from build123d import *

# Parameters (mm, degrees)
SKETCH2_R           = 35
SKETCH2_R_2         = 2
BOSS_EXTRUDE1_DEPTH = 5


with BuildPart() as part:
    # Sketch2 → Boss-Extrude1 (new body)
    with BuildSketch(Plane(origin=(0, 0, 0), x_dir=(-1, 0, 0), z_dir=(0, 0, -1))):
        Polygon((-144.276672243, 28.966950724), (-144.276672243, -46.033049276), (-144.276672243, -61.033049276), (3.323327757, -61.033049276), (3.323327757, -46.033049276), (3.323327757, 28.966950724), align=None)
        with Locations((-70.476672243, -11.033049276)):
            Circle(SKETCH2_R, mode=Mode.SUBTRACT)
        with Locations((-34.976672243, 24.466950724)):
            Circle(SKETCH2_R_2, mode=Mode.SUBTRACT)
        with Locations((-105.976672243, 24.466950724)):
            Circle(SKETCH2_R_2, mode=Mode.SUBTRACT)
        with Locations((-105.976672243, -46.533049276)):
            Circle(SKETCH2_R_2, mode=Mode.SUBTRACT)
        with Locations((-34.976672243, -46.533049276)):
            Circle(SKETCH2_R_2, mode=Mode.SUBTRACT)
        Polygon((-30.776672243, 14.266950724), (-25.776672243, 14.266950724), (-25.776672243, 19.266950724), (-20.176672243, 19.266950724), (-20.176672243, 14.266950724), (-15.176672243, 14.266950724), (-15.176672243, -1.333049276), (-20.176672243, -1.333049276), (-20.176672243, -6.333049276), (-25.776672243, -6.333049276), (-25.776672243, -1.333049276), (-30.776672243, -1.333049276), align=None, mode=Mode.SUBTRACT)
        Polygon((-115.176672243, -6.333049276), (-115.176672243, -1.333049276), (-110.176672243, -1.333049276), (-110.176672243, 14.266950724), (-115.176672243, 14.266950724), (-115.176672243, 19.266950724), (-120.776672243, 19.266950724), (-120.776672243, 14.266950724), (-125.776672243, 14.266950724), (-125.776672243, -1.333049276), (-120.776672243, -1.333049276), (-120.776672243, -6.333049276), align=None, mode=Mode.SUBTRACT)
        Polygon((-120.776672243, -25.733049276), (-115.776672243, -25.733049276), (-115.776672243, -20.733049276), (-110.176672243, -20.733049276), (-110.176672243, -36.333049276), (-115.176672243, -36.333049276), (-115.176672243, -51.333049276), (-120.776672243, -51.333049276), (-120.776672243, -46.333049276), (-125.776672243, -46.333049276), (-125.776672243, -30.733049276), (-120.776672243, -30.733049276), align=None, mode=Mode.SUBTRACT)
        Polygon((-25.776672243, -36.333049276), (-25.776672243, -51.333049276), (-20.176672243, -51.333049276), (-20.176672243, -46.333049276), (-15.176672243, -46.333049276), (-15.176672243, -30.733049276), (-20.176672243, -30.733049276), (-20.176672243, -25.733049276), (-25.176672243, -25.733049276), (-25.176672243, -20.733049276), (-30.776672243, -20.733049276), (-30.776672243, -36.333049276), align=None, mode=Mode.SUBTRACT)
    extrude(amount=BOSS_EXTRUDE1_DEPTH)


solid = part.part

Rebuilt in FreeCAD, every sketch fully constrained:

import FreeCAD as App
import Part
import Sketcher
from FreeCAD import Vector

doc = App.newDocument("Part")
body = doc.addObject("PartDesign::Body", "Body")

sketch1 = doc.addObject("Sketcher::SketchObject", "Sketch")
body.addObject(sketch1)
sketch1.AttachmentSupport = (doc.XY_Plane, [""])
sketch1.MapMode = "FlatFace"
sketch1.addGeometry([
    Part.LineSegment(Vector(144.276672, 28.966951, 0), Vector(144.276672, -61.033049, 0)),
    Part.LineSegment(Vector(144.276672, -61.033049, 0), Vector(-3.323328, -61.033049, 0)),
    Part.LineSegment(Vector(-3.323328, -61.033049, 0), Vector(-3.323328, 28.966951, 0)),
    Part.LineSegment(Vector(-3.323328, 28.966951, 0), Vector(144.276672, 28.966951, 0)),
    Part.Circle(Vector(105.976672, -46.533049, 0), Vector(0, 0, 1), 2),
    Part.LineSegment(Vector(120.776672, -30.733049, 0), Vector(120.776672, -25.733049, 0)),
    Part.LineSegment(Vector(120.776672, -25.733049, 0), Vector(115.776672, -25.733049, 0)),
    Part.LineSegment(Vector(115.776672, -25.733049, 0), Vector(115.776672, -20.733049, 0)),
    Part.LineSegment(Vector(115.776672, -20.733049, 0), Vector(110.176672, -20.733049, 0)),
    Part.LineSegment(Vector(110.176672, -20.733049, 0), Vector(110.176672, -36.333049, 0)),
    Part.LineSegment(Vector(110.176672, -36.333049, 0), Vector(115.176672, -36.333049, 0)),
    Part.LineSegment(Vector(115.176672, -36.333049, 0), Vector(115.176672, -51.333049, 0)),
    Part.LineSegment(Vector(115.176672, -51.333049, 0), Vector(120.776672, -51.333049, 0)),
    Part.LineSegment(Vector(120.776672, -51.333049, 0), Vector(120.776672, -46.333049, 0)),
    Part.LineSegment(Vector(120.776672, -46.333049, 0), Vector(125.776672, -46.333049, 0)),
    Part.LineSegment(Vector(125.776672, -46.333049, 0), Vector(125.776672, -30.733049, 0)),
    Part.LineSegment(Vector(125.776672, -30.733049, 0), Vector(120.776672, -30.733049, 0)),
    Part.Circle(Vector(34.976672, -46.533049, 0), Vector(0, 0, 1), 2),
    Part.LineSegment(Vector(25.776672, -51.333049, 0), Vector(25.776672, -36.333049, 0)),
    Part.LineSegment(Vector(25.776672, -36.333049, 0), Vector(30.776672, -36.333049, 0)),
    Part.LineSegment(Vector(30.776672, -36.333049, 0), Vector(30.776672, -20.733049, 0)),
    Part.LineSegment(Vector(30.776672, -20.733049, 0), Vector(25.176672, -20.733049, 0)),
    Part.LineSegment(Vector(25.176672, -20.733049, 0), Vector(25.176672, -25.733049, 0)),
    Part.LineSegment(Vector(25.176672, -25.733049, 0), Vector(20.176672, -25.733049, 0)),
    Part.LineSegment(Vector(20.176672, -25.733049, 0), Vector(20.176672, -30.733049, 0)),
    Part.LineSegment(Vector(20.176672, -30.733049, 0), Vector(15.176672, -30.733049, 0)),
    Part.LineSegment(Vector(15.176672, -30.733049, 0), Vector(15.176672, -46.333049, 0)),
    Part.LineSegment(Vector(15.176672, -46.333049, 0), Vector(20.176672, -46.333049, 0)),
    Part.LineSegment(Vector(20.176672, -46.333049, 0), Vector(20.176672, -51.333049, 0)),
    Part.LineSegment(Vector(20.176672, -51.333049, 0), Vector(25.776672, -51.333049, 0)),
    Part.LineSegment(Vector(115.176672, -1.333049, 0), Vector(115.176672, -6.333049, 0)),
    Part.LineSegment(Vector(115.176672, -6.333049, 0), Vector(120.776672, -6.333049, 0)),
    Part.LineSegment(Vector(120.776672, -6.333049, 0), Vector(120.776672, -1.333049, 0)),
    Part.LineSegment(Vector(120.776672, -1.333049, 0), Vector(125.776672, -1.333049, 0)),
    Part.LineSegment(Vector(125.776672, -1.333049, 0), Vector(125.776672, 14.266951, 0)),
    Part.LineSegment(Vector(125.776672, 14.266951, 0), Vector(120.776672, 14.266951, 0)),
    Part.LineSegment(Vector(120.776672, 14.266951, 0), Vector(120.776672, 19.266951, 0)),
    Part.LineSegment(Vector(120.776672, 19.266951, 0), Vector(115.176672, 19.266951, 0)),
    Part.LineSegment(Vector(115.176672, 19.266951, 0), Vector(115.176672, 14.266951, 0)),
    Part.LineSegment(Vector(115.176672, 14.266951, 0), Vector(110.176672, 14.266951, 0)),
    Part.LineSegment(Vector(110.176672, 14.266951, 0), Vector(110.176672, -1.333049, 0)),
    Part.LineSegment(Vector(110.176672, -1.333049, 0), Vector(115.176672, -1.333049, 0)),
    Part.Circle(Vector(105.976672, 24.466951, 0), Vector(0, 0, 1), 2),
    Part.Circle(Vector(70.476672, -11.033049, 0), Vector(0, 0, 1), 35),
    Part.LineSegment(Vector(30.776672, -1.333049, 0), Vector(30.776672, 14.266951, 0)),
    Part.LineSegment(Vector(30.776672, 14.266951, 0), Vector(25.776672, 14.266951, 0)),
    Part.LineSegment(Vector(25.776672, 14.266951, 0), Vector(25.776672, 19.266951, 0)),
    Part.LineSegment(Vector(25.776672, 19.266951, 0), Vector(20.176672, 19.266951, 0)),
    Part.LineSegment(Vector(20.176672, 19.266951, 0), Vector(20.176672, 14.266951, 0)),
    Part.LineSegment(Vector(20.176672, 14.266951, 0), Vector(15.176672, 14.266951, 0)),
    Part.LineSegment(Vector(15.176672, 14.266951, 0), Vector(15.176672, -1.333049, 0)),
    Part.LineSegment(Vector(15.176672, -1.333049, 0), Vector(20.176672, -1.333049, 0)),
    Part.LineSegment(Vector(20.176672, -1.333049, 0), Vector(20.176672, -6.333049, 0)),
    Part.LineSegment(Vector(20.176672, -6.333049, 0), Vector(25.776672, -6.333049, 0)),
    Part.LineSegment(Vector(25.776672, -6.333049, 0), Vector(25.776672, -1.333049, 0)),
    Part.LineSegment(Vector(25.776672, -1.333049, 0), Vector(30.776672, -1.333049, 0)),
    Part.Circle(Vector(34.976672, 24.466951, 0), Vector(0, 0, 1), 2),
], False)
sketch1.addConstraint([
    Sketcher.Constraint("Coincident", 0, 2, 1, 1),
    Sketcher.Constraint("Coincident", 1, 2, 2, 1),
    Sketcher.Constraint("Coincident", 2, 2, 3, 1),
    Sketcher.Constraint("Coincident", 3, 2, 0, 1),
    Sketcher.Constraint("Coincident", 5, 2, 6, 1),
    Sketcher.Constraint("Coincident", 6, 2, 7, 1),
    Sketcher.Constraint("Coincident", 7, 2, 8, 1),
    Sketcher.Constraint("Coincident", 8, 2, 9, 1),
    Sketcher.Constraint("Coincident", 9, 2, 10, 1),
    Sketcher.Constraint("Coincident", 10, 2, 11, 1),
    Sketcher.Constraint("Coincident", 11, 2, 12, 1),
    Sketcher.Constraint("Coincident", 12, 2, 13, 1),
    Sketcher.Constraint("Coincident", 13, 2, 14, 1),
    Sketcher.Constraint("Coincident", 14, 2, 15, 1),
    Sketcher.Constraint("Coincident", 15, 2, 16, 1),
    Sketcher.Constraint("Coincident", 16, 2, 5, 1),
    Sketcher.Constraint("Coincident", 18, 2, 19, 1),
    Sketcher.Constraint("Coincident", 19, 2, 20, 1),
    Sketcher.Constraint("Coincident", 20, 2, 21, 1),
    Sketcher.Constraint("Coincident", 21, 2, 22, 1),
    Sketcher.Constraint("Coincident", 22, 2, 23, 1),
    Sketcher.Constraint("Coincident", 23, 2, 24, 1),
    Sketcher.Constraint("Coincident", 24, 2, 25, 1),
    Sketcher.Constraint("Coincident", 25, 2, 26, 1),
    Sketcher.Constraint("Coincident", 26, 2, 27, 1),
    Sketcher.Constraint("Coincident", 27, 2, 28, 1),
    Sketcher.Constraint("Coincident", 28, 2, 29, 1),
    Sketcher.Constraint("Coincident", 29, 2, 18, 1),
    Sketcher.Constraint("Coincident", 30, 2, 31, 1),
    Sketcher.Constraint("Coincident", 31, 2, 32, 1),
    Sketcher.Constraint("Coincident", 32, 2, 33, 1),
    Sketcher.Constraint("Coincident", 33, 2, 34, 1),
    Sketcher.Constraint("Coincident", 34, 2, 35, 1),
    Sketcher.Constraint("Coincident", 35, 2, 36, 1),
    Sketcher.Constraint("Coincident", 36, 2, 37, 1),
    Sketcher.Constraint("Coincident", 37, 2, 38, 1),
    Sketcher.Constraint("Coincident", 38, 2, 39, 1),
    Sketcher.Constraint("Coincident", 39, 2, 40, 1),
    Sketcher.Constraint("Coincident", 40, 2, 41, 1),
    Sketcher.Constraint("Coincident", 41, 2, 30, 1),
    Sketcher.Constraint("Coincident", 44, 2, 45, 1),
    Sketcher.Constraint("Coincident", 45, 2, 46, 1),
    Sketcher.Constraint("Coincident", 46, 2, 47, 1),
    Sketcher.Constraint("Coincident", 47, 2, 48, 1),
    Sketcher.Constraint("Coincident", 48, 2, 49, 1),
    Sketcher.Constraint("Coincident", 49, 2, 50, 1),
    Sketcher.Constraint("Coincident", 50, 2, 51, 1),
    Sketcher.Constraint("Coincident", 51, 2, 52, 1),
    Sketcher.Constraint("Coincident", 52, 2, 53, 1),
    Sketcher.Constraint("Coincident", 53, 2, 54, 1),
    Sketcher.Constraint("Coincident", 54, 2, 55, 1),
    Sketcher.Constraint("Coincident", 55, 2, 44, 1),
    Sketcher.Constraint("Vertical", 0),
    Sketcher.Constraint("Horizontal", 1),
    Sketcher.Constraint("Vertical", 2),
    Sketcher.Constraint("Horizontal", 3),
    Sketcher.Constraint("Vertical", 5),
    Sketcher.Constraint("Horizontal", 6),
    Sketcher.Constraint("Vertical", 7),
    Sketcher.Constraint("Horizontal", 8),
    Sketcher.Constraint("Vertical", 9),
    Sketcher.Constraint("Horizontal", 10),
    Sketcher.Constraint("Vertical", 11),
    Sketcher.Constraint("Horizontal", 12),
    Sketcher.Constraint("Vertical", 13),
    Sketcher.Constraint("Horizontal", 14),
    Sketcher.Constraint("Vertical", 15),
    Sketcher.Constraint("Horizontal", 16),
    Sketcher.Constraint("Vertical", 18),
    Sketcher.Constraint("Horizontal", 19),
    Sketcher.Constraint("Vertical", 20),
    Sketcher.Constraint("Horizontal", 21),
    Sketcher.Constraint("Vertical", 22),
    Sketcher.Constraint("Horizontal", 23),
    Sketcher.Constraint("Vertical", 24),
    Sketcher.Constraint("Horizontal", 25),
    Sketcher.Constraint("Vertical", 26),
    Sketcher.Constraint("Horizontal", 27),
    Sketcher.Constraint("Vertical", 28),
    Sketcher.Constraint("Horizontal", 29),
    Sketcher.Constraint("Vertical", 30),
    Sketcher.Constraint("Horizontal", 31),
    Sketcher.Constraint("Vertical", 32),
    Sketcher.Constraint("Horizontal", 33),
    Sketcher.Constraint("Vertical", 34),
    Sketcher.Constraint("Horizontal", 35),
    Sketcher.Constraint("Vertical", 36),
    Sketcher.Constraint("Horizontal", 37),
    Sketcher.Constraint("Vertical", 38),
    Sketcher.Constraint("Horizontal", 39),
    Sketcher.Constraint("Vertical", 40),
    Sketcher.Constraint("Horizontal", 41),
    Sketcher.Constraint("Vertical", 44),
    Sketcher.Constraint("Horizontal", 45),
    Sketcher.Constraint("Vertical", 46),
    Sketcher.Constraint("Horizontal", 47),
    Sketcher.Constraint("Vertical", 48),
    Sketcher.Constraint("Horizontal", 49),
    Sketcher.Constraint("Vertical", 50),
    Sketcher.Constraint("Horizontal", 51),
    Sketcher.Constraint("Vertical", 52),
    Sketcher.Constraint("Horizontal", 53),
    Sketcher.Constraint("Vertical", 54),
    Sketcher.Constraint("Horizontal", 55),
    Sketcher.Constraint("Equal", 4, 17),
    Sketcher.Constraint("Equal", 17, 42),
    Sketcher.Constraint("Equal", 42, 56),
    Sketcher.Constraint("Horizontal", 4, 3, 17, 3),
    Sketcher.Constraint("Horizontal", 42, 3, 56, 3),
    Sketcher.Constraint("Horizontal", 10, 2, 18, 2),
    Sketcher.Constraint("Horizontal", 8, 2, 20, 2),
    Sketcher.Constraint("Horizontal", 6, 2, 22, 2),
    Sketcher.Constraint("Horizontal", 16, 2, 24, 2),
    Sketcher.Constraint("Horizontal", 14, 2, 26, 2),
    Sketcher.Constraint("Horizontal", 12, 2, 28, 2),
    Sketcher.Constraint("Horizontal", 35, 2, 38, 2),
    Sketcher.Constraint("Horizontal", 33, 2, 40, 2),
    Sketcher.Constraint("Horizontal", 39, 2, 44, 2),
    Sketcher.Constraint("Horizontal", 37, 2, 46, 2),
    Sketcher.Constraint("Horizontal", 45, 2, 48, 2),
    Sketcher.Constraint("Horizontal", 41, 2, 50, 2),
    Sketcher.Constraint("Horizontal", 31, 2, 52, 2),
    Sketcher.Constraint("Horizontal", 51, 2, 54, 2),
    Sketcher.Constraint("Vertical", 4, 3, 42, 3),
    Sketcher.Constraint("Vertical", 17, 3, 56, 3),
    Sketcher.Constraint("Vertical", 5, 2, 12, 2),
    Sketcher.Constraint("Vertical", 24, 2, 27, 2),
    Sketcher.Constraint("Vertical", 11, 2, 30, 2),
    Sketcher.Constraint("Vertical", 16, 2, 31, 2),
    Sketcher.Constraint("Vertical", 15, 2, 33, 2),
    Sketcher.Constraint("Vertical", 32, 2, 35, 2),
    Sketcher.Constraint("Vertical", 30, 2, 37, 2),
    Sketcher.Constraint("Vertical", 9, 2, 39, 2),
    Sketcher.Constraint("Vertical", 20, 2, 44, 2),
    Sketcher.Constraint("Vertical", 29, 2, 45, 2),
    Sketcher.Constraint("Vertical", 28, 2, 47, 2),
    Sketcher.Constraint("Vertical", 26, 2, 49, 2),
    Sketcher.Constraint("Vertical", 48, 2, 51, 2),
    Sketcher.Constraint("Vertical", 46, 2, 53, 2),
    Sketcher.Constraint("Equal", 6, 10),
    Sketcher.Constraint("Equal", 10, 14),
    Sketcher.Constraint("Equal", 16, 19),
    Sketcher.Constraint("Equal", 12, 21),
    Sketcher.Constraint("Equal", 19, 23),
    Sketcher.Constraint("Equal", 23, 25),
    Sketcher.Constraint("Equal", 55, 5),
    Sketcher.Constraint("Equal", 5, 7),
    Sketcher.Constraint("Equal", 7, 13),
    Sketcher.Constraint("Equal", 9, 15),
    Sketcher.Constraint("Equal", 28, 30),
    Sketcher.Constraint("Equal", 26, 34),
    Sketcher.Constraint("Equal", 32, 36),
    Sketcher.Constraint("Diameter", 4, 4.0),
    Sketcher.Constraint("Diameter", 43, 70.0),
    Sketcher.Constraint("DistanceX", 6, 2, 6, 1, 5.0),
    Sketcher.Constraint("DistanceY", 0, 2, 0, 1, 90.0),
    Sketcher.Constraint("DistanceX", 1, 2, 1, 1, 147.6),
    Sketcher.Constraint("DistanceX", 8, 2, 8, 1, 5.6),
    Sketcher.Constraint("DistanceY", 9, 2, 9, 1, 15.6),
    Sketcher.Constraint("DistanceX", 17, 3, 4, 3, 71.0),
    Sketcher.Constraint("DistanceY", 4, 3, 42, 3, 71.0),
    Sketcher.Constraint("DistanceY", 0, 2, 43, 3, 50.0),
    Sketcher.Constraint("DistanceY", 20, 2, 44, 2, 35.0),
    Sketcher.Constraint("DistanceX", 17, 3, 43, 3, 35.5),
    Sketcher.Constraint("DistanceY", 17, 3, 43, 3, 35.5),
    Sketcher.Constraint("DistanceX", 4, 3, 0, 2, 38.3),
    Sketcher.Constraint("DistanceX", 4, 3, 5, 2, 14.8),
    Sketcher.Constraint("DistanceY", 4, 3, 5, 2, 20.8),
    Sketcher.Constraint("DistanceX", 18, 2, 17, 3, 9.2),
    Sketcher.Constraint("DistanceY", 4, 3, -1, 1, 46.533049),
    Sketcher.Constraint("DistanceX", -1, 1, 4, 3, 105.976672),
])
pad1 = doc.addObject("PartDesign::Pad", "Pad")
body.addObject(pad1)
pad1.Profile = sketch1
pad1.Length = 5
pad1.Reversed = True

doc.recompute()
